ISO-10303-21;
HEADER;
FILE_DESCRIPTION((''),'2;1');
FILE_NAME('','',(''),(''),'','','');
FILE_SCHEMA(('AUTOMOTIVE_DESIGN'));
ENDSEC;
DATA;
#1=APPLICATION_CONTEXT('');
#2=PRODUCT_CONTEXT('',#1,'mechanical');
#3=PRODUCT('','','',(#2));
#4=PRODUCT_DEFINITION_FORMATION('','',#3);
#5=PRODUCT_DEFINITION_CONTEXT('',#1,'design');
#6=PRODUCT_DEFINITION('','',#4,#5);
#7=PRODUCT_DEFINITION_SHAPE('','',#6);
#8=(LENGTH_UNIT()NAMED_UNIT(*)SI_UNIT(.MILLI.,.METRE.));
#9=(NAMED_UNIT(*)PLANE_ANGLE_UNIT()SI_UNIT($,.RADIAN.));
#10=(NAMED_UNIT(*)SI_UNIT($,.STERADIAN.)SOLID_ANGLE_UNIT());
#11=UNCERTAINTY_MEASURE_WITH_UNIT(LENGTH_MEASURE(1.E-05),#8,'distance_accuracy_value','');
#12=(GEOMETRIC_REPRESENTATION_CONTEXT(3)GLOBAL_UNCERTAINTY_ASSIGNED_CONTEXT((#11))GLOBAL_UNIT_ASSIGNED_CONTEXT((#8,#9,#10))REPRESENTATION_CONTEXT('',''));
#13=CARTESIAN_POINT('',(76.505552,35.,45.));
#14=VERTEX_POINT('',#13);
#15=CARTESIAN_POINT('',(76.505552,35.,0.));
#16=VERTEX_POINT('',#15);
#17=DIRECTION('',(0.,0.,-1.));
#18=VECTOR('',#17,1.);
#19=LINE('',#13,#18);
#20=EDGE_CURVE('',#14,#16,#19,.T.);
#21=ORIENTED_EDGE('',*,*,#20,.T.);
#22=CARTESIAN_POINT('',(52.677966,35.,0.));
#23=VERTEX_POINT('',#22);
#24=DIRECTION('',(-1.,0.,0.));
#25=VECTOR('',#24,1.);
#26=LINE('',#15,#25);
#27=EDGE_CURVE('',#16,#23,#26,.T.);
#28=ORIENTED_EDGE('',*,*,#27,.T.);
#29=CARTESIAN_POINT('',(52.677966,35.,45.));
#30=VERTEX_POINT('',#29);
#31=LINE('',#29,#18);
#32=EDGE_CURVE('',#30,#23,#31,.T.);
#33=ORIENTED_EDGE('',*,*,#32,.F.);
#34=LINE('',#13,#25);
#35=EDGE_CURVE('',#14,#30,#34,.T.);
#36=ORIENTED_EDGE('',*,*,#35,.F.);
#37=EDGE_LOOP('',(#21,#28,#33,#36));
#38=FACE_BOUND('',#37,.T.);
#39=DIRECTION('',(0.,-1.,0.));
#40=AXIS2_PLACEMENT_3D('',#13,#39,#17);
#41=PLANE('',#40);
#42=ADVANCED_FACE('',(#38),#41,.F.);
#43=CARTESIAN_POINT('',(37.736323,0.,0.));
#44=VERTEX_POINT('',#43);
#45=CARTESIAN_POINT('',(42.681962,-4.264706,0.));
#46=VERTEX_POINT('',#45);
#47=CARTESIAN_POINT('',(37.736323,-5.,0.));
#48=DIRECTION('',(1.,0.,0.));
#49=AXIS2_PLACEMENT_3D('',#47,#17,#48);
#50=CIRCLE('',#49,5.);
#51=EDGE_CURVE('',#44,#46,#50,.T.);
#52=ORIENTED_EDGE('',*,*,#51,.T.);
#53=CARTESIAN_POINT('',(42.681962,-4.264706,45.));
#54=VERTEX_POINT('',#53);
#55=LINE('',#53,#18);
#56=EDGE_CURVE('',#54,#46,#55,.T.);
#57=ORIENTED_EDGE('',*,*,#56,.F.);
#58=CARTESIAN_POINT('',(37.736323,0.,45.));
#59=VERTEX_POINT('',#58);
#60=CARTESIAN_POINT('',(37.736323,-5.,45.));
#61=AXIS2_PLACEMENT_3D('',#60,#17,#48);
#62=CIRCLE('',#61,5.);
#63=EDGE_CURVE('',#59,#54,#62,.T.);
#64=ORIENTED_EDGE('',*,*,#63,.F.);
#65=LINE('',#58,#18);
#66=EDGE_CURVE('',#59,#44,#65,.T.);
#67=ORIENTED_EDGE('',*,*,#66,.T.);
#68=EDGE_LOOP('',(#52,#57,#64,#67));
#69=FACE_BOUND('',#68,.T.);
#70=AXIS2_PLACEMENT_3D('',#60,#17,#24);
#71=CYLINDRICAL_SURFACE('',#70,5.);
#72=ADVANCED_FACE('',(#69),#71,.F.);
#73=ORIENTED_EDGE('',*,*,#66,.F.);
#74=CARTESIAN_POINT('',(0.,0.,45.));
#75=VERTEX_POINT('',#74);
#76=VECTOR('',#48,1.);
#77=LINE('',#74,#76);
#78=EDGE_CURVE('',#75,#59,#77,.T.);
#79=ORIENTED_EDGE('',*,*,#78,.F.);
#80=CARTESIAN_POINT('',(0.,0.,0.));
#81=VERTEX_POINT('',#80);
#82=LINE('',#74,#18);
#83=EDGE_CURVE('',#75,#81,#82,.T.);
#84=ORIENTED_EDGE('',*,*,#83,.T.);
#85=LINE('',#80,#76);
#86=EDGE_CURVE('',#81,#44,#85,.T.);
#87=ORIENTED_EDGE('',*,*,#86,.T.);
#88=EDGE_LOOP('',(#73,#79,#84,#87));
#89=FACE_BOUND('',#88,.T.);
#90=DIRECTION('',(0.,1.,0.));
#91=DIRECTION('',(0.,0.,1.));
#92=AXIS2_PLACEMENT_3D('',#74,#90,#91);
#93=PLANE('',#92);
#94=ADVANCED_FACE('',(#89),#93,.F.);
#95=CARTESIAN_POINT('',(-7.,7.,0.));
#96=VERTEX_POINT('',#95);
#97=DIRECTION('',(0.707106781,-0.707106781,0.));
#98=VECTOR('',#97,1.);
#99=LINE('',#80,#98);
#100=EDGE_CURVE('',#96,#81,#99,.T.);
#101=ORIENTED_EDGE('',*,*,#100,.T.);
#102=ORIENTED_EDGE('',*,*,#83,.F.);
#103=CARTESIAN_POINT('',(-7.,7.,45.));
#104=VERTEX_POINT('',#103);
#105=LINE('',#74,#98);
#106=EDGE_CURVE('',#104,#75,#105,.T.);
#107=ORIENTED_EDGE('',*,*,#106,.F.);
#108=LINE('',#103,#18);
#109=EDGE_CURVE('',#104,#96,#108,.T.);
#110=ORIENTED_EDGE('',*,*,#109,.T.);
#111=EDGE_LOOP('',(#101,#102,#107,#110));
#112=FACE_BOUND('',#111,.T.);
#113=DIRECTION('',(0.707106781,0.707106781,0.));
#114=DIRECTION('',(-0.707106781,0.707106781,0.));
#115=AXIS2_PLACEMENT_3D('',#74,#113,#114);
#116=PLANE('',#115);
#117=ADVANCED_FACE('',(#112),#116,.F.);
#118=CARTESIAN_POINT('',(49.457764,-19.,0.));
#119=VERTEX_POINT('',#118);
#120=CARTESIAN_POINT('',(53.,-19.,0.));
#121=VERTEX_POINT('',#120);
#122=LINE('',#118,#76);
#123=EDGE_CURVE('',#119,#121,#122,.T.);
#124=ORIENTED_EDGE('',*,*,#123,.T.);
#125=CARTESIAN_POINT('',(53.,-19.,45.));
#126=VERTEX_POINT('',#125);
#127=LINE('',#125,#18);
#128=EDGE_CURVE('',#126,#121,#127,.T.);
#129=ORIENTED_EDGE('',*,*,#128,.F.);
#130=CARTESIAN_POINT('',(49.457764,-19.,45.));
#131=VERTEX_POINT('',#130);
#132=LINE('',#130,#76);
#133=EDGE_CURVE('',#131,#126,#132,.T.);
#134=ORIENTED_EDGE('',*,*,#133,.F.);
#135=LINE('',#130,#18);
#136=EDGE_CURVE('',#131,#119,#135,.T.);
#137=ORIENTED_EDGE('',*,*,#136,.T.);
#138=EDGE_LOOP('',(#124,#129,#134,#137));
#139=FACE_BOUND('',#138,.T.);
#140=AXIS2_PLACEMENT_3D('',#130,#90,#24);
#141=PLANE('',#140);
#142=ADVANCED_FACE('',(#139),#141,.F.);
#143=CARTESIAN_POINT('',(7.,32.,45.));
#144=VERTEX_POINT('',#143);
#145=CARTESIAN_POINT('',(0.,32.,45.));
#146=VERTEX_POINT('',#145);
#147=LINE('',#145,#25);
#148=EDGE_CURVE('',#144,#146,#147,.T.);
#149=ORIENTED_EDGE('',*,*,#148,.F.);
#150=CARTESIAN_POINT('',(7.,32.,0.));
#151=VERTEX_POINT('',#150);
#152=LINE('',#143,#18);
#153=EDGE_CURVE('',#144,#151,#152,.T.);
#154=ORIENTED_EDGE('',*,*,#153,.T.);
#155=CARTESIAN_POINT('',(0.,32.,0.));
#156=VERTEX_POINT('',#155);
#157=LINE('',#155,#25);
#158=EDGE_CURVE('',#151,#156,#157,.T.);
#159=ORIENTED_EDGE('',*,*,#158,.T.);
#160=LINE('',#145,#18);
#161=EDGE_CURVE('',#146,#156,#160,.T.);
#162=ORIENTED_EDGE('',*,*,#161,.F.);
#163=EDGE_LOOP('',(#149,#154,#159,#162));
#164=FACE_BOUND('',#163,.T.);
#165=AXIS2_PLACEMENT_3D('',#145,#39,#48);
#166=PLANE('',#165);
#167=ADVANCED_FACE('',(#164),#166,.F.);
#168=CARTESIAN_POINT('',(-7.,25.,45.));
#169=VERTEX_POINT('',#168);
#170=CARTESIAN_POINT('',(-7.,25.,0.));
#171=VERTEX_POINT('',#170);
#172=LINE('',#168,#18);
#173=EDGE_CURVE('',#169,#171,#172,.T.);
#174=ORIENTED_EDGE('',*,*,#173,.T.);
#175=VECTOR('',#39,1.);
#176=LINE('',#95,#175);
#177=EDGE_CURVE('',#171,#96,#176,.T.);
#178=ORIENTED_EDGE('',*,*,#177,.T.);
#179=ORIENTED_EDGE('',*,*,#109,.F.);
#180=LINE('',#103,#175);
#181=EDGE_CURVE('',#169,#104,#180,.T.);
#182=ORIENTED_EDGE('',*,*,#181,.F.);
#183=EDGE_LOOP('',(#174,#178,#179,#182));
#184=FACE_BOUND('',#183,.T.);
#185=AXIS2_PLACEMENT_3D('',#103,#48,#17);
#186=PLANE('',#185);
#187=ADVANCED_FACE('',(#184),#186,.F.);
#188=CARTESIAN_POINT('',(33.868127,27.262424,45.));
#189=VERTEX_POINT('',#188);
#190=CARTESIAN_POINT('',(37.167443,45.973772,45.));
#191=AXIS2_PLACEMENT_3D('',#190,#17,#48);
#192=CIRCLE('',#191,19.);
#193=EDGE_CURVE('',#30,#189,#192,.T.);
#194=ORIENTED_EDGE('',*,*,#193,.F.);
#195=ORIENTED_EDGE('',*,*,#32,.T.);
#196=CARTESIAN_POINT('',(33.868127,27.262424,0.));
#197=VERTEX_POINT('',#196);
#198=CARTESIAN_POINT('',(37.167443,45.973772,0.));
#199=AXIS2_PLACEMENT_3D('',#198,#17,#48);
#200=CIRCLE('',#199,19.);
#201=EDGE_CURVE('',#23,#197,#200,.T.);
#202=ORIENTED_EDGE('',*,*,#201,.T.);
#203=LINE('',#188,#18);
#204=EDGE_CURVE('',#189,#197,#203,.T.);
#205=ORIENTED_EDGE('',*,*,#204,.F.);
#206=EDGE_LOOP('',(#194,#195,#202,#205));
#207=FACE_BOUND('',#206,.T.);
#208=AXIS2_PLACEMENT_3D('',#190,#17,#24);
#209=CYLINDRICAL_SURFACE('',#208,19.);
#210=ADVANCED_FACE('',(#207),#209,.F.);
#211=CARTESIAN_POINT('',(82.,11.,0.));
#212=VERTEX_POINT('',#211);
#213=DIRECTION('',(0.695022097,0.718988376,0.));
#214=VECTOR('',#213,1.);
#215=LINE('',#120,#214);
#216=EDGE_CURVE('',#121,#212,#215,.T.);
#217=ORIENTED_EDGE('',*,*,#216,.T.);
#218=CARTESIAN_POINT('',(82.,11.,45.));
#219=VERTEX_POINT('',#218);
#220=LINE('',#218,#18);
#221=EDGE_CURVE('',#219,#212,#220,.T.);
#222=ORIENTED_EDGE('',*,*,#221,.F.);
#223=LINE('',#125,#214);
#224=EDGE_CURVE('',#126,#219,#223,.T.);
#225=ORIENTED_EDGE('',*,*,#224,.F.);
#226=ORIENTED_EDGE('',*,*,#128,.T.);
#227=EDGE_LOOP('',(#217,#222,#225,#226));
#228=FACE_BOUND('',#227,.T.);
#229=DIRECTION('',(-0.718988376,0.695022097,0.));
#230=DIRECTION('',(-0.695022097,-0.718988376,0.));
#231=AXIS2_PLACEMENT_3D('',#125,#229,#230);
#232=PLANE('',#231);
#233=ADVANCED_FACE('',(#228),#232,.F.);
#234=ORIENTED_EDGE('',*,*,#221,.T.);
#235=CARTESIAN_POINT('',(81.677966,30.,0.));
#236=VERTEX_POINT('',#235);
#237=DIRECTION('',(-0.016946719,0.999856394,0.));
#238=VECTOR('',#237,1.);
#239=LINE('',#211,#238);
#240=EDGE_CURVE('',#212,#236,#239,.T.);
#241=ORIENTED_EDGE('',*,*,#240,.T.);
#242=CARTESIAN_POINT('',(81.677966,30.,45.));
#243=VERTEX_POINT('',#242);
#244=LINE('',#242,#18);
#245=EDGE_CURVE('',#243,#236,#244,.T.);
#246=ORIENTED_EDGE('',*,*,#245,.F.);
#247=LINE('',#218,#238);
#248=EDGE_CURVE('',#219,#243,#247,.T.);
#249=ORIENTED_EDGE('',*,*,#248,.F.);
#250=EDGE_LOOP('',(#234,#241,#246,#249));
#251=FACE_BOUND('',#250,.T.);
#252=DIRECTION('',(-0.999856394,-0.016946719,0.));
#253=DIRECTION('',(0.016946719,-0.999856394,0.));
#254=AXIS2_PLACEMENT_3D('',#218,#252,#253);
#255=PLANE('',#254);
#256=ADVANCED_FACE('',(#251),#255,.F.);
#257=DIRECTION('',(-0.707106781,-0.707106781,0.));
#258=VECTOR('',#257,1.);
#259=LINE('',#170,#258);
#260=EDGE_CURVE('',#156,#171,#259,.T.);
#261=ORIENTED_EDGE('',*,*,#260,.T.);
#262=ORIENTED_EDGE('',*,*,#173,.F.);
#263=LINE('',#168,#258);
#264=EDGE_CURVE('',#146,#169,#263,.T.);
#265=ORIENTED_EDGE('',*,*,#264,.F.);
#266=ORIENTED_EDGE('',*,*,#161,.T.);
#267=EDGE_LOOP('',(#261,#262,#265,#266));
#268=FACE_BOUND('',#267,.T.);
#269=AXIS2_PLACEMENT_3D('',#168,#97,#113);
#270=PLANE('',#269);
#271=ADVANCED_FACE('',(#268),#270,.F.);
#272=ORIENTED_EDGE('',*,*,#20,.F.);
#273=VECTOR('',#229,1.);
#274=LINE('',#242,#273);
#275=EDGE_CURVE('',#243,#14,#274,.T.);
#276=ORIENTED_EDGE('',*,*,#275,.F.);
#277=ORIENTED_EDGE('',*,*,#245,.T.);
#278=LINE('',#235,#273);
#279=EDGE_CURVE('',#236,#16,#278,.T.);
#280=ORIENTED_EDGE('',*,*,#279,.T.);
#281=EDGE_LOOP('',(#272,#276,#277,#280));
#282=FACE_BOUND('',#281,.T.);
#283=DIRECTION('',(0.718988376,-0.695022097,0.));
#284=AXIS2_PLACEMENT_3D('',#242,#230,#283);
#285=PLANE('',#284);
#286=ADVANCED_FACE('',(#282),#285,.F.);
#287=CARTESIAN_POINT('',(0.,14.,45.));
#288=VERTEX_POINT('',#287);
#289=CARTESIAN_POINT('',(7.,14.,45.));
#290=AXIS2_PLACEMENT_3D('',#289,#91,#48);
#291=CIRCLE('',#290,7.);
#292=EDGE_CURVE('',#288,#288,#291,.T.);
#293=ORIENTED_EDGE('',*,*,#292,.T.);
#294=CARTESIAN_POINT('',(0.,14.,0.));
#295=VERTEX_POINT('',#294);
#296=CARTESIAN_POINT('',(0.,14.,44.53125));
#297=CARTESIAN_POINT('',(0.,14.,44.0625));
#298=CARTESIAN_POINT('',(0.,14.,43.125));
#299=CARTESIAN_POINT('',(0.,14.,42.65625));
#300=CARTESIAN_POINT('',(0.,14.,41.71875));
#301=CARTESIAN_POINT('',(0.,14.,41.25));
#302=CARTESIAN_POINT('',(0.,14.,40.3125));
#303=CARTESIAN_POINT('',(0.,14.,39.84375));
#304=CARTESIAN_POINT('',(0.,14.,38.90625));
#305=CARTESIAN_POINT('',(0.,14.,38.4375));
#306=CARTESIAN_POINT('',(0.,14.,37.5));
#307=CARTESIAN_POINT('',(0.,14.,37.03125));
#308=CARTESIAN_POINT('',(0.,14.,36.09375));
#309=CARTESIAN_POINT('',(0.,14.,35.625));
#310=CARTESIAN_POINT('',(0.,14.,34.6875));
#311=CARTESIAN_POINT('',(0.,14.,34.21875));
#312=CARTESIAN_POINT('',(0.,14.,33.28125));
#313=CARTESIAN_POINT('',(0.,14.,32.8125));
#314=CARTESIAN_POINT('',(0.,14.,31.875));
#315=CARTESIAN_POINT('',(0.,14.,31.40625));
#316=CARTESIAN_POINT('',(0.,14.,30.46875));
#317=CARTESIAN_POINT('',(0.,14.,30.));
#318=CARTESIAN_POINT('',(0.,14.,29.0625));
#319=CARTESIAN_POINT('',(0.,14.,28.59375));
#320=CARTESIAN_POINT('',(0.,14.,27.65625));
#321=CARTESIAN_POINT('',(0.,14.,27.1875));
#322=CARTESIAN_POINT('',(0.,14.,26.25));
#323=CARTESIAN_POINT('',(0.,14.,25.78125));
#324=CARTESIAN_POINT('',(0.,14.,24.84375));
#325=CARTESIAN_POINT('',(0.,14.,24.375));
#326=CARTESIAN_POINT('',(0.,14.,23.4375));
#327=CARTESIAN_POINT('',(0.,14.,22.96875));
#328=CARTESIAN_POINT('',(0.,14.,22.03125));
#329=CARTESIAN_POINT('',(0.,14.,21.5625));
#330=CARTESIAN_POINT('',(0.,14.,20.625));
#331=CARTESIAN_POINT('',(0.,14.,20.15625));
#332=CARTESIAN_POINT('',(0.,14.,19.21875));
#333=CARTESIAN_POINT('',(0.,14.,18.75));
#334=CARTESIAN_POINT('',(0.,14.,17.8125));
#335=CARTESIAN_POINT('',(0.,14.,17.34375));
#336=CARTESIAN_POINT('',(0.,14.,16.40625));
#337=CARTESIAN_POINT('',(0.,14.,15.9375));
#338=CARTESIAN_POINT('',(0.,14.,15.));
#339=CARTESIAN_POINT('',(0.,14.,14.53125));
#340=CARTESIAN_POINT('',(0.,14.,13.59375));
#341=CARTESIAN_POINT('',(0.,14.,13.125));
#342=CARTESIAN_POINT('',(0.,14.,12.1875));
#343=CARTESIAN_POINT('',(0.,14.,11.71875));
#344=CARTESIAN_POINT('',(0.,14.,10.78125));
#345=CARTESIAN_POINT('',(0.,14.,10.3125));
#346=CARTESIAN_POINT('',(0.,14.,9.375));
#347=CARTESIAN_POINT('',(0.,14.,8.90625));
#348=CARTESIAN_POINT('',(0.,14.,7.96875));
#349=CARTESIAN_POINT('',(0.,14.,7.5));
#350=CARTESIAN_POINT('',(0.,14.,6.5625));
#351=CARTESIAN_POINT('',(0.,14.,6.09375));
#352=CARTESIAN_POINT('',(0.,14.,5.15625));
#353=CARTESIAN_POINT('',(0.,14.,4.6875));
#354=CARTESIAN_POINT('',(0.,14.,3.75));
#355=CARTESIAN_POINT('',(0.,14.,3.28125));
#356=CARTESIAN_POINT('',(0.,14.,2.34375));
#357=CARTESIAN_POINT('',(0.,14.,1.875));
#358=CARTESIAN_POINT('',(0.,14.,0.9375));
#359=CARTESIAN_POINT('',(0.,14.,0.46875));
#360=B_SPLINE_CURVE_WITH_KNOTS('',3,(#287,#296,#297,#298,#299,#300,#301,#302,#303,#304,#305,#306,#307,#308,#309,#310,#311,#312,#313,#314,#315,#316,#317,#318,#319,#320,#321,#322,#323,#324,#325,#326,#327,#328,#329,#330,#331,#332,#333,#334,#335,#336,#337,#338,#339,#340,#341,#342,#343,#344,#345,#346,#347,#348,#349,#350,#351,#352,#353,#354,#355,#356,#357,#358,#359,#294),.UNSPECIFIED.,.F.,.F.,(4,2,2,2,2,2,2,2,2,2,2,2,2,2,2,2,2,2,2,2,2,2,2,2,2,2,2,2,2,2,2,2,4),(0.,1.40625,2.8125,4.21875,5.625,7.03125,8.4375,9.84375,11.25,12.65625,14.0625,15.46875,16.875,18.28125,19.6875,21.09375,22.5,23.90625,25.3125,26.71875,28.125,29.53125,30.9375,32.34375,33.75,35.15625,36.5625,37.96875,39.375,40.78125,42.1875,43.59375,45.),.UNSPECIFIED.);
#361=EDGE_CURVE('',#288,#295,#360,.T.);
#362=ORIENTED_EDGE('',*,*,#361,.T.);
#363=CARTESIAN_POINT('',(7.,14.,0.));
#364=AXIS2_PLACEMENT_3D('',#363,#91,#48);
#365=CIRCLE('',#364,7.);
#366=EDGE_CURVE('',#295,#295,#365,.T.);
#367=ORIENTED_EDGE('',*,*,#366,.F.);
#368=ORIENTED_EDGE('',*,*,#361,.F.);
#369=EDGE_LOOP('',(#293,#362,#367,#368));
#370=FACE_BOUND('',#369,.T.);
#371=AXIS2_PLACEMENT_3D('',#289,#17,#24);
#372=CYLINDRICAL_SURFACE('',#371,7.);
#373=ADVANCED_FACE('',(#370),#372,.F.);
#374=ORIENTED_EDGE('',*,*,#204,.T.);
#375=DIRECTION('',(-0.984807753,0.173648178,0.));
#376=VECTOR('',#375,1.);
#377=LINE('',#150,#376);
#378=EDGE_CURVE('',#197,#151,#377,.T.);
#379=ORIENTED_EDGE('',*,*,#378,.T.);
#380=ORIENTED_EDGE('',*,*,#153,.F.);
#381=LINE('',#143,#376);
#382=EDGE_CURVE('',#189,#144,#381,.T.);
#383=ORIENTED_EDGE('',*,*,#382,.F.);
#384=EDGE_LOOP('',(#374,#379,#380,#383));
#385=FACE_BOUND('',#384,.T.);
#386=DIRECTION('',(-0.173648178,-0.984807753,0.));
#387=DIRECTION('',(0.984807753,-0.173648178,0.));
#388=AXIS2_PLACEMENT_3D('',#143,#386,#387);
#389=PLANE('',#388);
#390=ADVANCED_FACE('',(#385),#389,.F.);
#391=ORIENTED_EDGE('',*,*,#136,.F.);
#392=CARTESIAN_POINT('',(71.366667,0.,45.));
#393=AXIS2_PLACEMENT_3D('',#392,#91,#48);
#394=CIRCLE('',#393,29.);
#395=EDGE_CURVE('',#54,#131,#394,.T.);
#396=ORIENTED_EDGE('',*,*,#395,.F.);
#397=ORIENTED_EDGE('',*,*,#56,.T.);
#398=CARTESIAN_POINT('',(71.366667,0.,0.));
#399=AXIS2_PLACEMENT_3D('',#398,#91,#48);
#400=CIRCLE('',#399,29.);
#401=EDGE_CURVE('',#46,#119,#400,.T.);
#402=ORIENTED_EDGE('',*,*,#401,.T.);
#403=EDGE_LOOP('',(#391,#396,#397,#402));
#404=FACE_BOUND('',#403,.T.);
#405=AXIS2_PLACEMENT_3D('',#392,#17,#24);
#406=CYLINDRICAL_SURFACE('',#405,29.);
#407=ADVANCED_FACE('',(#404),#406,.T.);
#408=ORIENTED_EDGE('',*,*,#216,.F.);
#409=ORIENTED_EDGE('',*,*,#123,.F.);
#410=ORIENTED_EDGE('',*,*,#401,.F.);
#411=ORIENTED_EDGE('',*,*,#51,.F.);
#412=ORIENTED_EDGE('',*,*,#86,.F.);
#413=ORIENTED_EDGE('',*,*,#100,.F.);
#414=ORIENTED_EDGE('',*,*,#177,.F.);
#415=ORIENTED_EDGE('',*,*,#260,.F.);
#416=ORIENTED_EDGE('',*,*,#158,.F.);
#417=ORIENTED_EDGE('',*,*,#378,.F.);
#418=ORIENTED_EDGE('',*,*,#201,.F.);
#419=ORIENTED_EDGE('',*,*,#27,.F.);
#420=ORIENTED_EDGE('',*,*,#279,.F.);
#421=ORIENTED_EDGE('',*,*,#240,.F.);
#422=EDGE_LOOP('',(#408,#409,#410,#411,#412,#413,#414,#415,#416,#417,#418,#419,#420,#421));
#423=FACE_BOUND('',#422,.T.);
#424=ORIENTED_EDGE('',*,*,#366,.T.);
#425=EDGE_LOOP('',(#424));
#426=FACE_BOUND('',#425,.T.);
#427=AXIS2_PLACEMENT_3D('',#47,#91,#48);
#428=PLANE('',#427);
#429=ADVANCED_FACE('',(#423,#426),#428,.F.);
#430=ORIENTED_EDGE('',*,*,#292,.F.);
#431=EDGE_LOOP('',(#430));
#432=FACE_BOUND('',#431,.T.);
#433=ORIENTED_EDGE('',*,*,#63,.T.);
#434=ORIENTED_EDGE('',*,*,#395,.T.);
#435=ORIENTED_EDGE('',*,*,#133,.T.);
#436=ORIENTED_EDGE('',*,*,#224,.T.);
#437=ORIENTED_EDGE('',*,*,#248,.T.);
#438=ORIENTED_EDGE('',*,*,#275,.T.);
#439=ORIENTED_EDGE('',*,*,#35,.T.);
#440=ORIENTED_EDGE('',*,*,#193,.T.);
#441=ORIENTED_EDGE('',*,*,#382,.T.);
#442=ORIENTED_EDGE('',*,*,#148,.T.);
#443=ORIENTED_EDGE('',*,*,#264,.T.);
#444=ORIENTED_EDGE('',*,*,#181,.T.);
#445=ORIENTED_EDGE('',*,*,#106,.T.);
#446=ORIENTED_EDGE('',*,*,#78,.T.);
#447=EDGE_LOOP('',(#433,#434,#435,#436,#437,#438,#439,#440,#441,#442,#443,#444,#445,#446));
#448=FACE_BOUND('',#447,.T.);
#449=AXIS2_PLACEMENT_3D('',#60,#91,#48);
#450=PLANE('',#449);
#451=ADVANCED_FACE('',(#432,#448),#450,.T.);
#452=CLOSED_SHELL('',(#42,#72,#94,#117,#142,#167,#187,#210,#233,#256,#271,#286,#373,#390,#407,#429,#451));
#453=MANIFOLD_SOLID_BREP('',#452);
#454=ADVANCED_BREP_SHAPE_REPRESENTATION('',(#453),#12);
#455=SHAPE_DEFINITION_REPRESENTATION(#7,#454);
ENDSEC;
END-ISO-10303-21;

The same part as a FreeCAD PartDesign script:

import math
import FreeCAD as App
import Part
import Sketcher
Q = App.Units.Quantity

doc = App.newDocument("Part")
body = doc.addObject("PartDesign::Body", "Body")

sketch1 = body.newObject("Sketcher::SketchObject", "Sketch")
sketch1.AttachmentSupport = (doc.getObject("XY_Plane"), [""])
sketch1.MapMode = "FlatFace"
sketch1.addGeometry([
    Part.LineSegment(App.Vector(-7, 7, 0), App.Vector(0, 0, 0)),
    Part.LineSegment(App.Vector(0, 0, 0), App.Vector(37.7, 0, 0)),
    Part.ArcOfCircle(Part.Circle(App.Vector(37.7, -5, 0), App.Vector(0, 0, 1), 5), math.radians(8), math.radians(90)),
    Part.ArcOfCircle(Part.Circle(App.Vector(71.4, 0, 0), App.Vector(0, 0, 1), 29), math.radians(-172), math.radians(-139)),
    Part.LineSegment(App.Vector(49.5, -19, 0), App.Vector(53, -19, 0)),
    Part.LineSegment(App.Vector(53, -19, 0), App.Vector(82, 11, 0)),
    Part.LineSegment(App.Vector(82, 11, 0), App.Vector(81.7, 30, 0)),
    Part.LineSegment(App.Vector(81.7, 30, 0), App.Vector(76.5, 35, 0)),
    Part.LineSegment(App.Vector(76.5, 35, 0), App.Vector(52.7, 35, 0)),
    Part.ArcOfCircle(Part.Circle(App.Vector(37.2, 46, 0), App.Vector(0, 0, 1), 19), math.radians(-100), math.radians(-35)),
    Part.LineSegment(App.Vector(33.9, 27.3, 0), App.Vector(7, 32, 0)),
    Part.LineSegment(App.Vector(7, 32, 0), App.Vector(0, 32, 0)),
    Part.LineSegment(App.Vector(0, 32, 0), App.Vector(-7, 25, 0)),
    Part.LineSegment(App.Vector(-7, 25, 0), App.Vector(-7, 7, 0)),
    Part.Circle(App.Vector(7, 14, 0), App.Vector(0, 0, 1), 7),
], False)
sketch1.addConstraint([
    Sketcher.Constraint("Coincident", 0, 2, 1, 1),
    Sketcher.Constraint("Tangent", 1, 2, 2, 2),
    Sketcher.Constraint("Tangent", 2, 1, 3, 1),
    Sketcher.Constraint("Coincident", 3, 2, 4, 1),
    Sketcher.Constraint("Coincident", 4, 2, 5, 1),
    Sketcher.Constraint("Coincident", 5, 2, 6, 1),
    Sketcher.Constraint("Coincident", 6, 2, 7, 1),
    Sketcher.Constraint("Coincident", 7, 2, 8, 1),
    Sketcher.Constraint("Coincident", 8, 2, 9, 2),
    Sketcher.Constraint("Tangent", 9, 1, 10, 1),
    Sketcher.Constraint("Coincident", 10, 2, 11, 1),
    Sketcher.Constraint("Coincident", 11, 2, 12, 1),
    Sketcher.Constraint("Coincident", 12, 2, 13, 1),
    Sketcher.Constraint("Coincident", 13, 2, 0, 1),
    Sketcher.Constraint("Horizontal", 1),
    Sketcher.Constraint("Horizontal", 4),
    Sketcher.Constraint("Horizontal", 8),
    Sketcher.Constraint("Horizontal", 11),
    Sketcher.Constraint("Vertical", 13),
    Sketcher.Constraint("Coincident", 0, 2, -1, 1),
    Sketcher.Constraint("PointOnObject", 3, 3, -1),
    Sketcher.Constraint("PointOnObject", 11, 2, -2),
    Sketcher.Constraint("Perpendicular", 5, 7),
    Sketcher.Constraint("Perpendicular", 0, 12),
    Sketcher.Constraint("Vertical", 14, 3, 10, 2),
    Sketcher.Constraint("Equal", 0, 12),
    Sketcher.Constraint("Diameter", 14, Q("14 mm")),
    Sketcher.Constraint("Radius", 2, Q("5 mm")),
    Sketcher.Constraint("Radius", 3, Q("29 mm")),
    Sketcher.Constraint("Radius", 9, Q("19 mm")),
    Sketcher.Constraint("DistanceX", 11, 2, 11, 1, Q("7 mm")),
    Sketcher.Constraint("DistanceY", 13, 2, 13, 1, Q("18 mm")),
    Sketcher.Constraint("Angle", 10, Q("170 deg")),
    Sketcher.Constraint("DistanceY", -1, 1, 14, 3, Q("14 mm")),
    Sketcher.Constraint("DistanceY", 3, 2, -1, 1, Q("19 mm")),
    Sketcher.Constraint("DistanceX", -1, 1, 4, 2, Q("53 mm")),
    Sketcher.Constraint("DistanceX", -1, 1, 5, 2, Q("82 mm")),
    Sketcher.Constraint("DistanceY", -1, 1, 5, 2, Q("11 mm")),
    Sketcher.Constraint("DistanceY", -1, 1, 6, 2, Q("30 mm")),
    Sketcher.Constraint("DistanceY", -1, 1, 7, 2, Q("35 mm")),
    Sketcher.Constraint("DistanceY", -1, 1, 10, 2, Q("32 mm")),
    Sketcher.Constraint("DistanceX", 8, 2, 6, 2, Q("29 mm")),
    Sketcher.Constraint("DistanceX", 3, 3, 6, 2, Q("10.311299 mm")),
    Sketcher.Constraint("Distance", 6, Q("19.002729 mm")),
])
pad1 = body.newObject("PartDesign::Pad", "Pad")
pad1.Profile = sketch1
pad1.Length = 45

doc.recompute()
